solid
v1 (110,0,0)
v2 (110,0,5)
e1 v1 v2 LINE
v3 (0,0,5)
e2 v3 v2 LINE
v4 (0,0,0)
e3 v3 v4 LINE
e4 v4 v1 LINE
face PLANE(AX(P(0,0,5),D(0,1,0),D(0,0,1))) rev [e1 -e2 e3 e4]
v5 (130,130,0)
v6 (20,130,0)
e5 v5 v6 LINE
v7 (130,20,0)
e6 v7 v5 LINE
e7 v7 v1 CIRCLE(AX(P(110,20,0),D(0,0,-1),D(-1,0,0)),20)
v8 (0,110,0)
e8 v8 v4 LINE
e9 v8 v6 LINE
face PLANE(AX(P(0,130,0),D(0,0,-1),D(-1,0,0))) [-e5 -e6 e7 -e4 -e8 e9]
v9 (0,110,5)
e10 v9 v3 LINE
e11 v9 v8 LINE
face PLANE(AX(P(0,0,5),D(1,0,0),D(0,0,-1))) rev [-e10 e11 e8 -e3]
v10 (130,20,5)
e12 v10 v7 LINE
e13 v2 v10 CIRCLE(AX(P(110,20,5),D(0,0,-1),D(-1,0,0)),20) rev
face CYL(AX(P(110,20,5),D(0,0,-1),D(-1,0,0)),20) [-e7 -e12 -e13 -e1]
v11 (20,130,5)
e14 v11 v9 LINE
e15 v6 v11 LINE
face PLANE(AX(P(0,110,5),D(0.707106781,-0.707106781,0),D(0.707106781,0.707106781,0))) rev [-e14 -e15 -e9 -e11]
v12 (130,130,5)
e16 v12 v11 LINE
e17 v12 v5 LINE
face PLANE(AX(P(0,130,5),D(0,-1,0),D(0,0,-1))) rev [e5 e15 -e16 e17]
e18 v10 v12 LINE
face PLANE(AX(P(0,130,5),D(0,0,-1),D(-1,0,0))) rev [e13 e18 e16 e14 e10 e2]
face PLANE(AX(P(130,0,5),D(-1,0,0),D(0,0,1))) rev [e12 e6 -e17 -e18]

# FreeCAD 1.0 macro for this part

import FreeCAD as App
import Part
import Sketcher

V = App.Vector


def edges_at(feature, points):
    """Names of the edges that pass closest to the given points."""
    edges = feature.Shape.Edges
    near = lambda p: min(range(len(edges)), key=lambda i: edges[i].distToShape(Part.Vertex(*p))[0])
    return sorted({f"Edge{near(p) + 1}" for p in points})


def add_polygon(sketch, points):
    """Adds a closed chain of lines whose ends are joined by coincident constraints."""
    first, n = sketch.GeometryCount, len(points)
    for a, b in zip(points, points[1:] + points[:1]):
        sketch.addGeometry(Part.LineSegment(App.Vector(*a, 0), App.Vector(*b, 0)), False)
    for i in range(n):
        sketch.addConstraint(Sketcher.Constraint("Coincident", first + i, 2, first + (i + 1) % n, 1))

doc = App.newDocument("Part")
body = doc.addObject("PartDesign::Body", "Body")

sketch1 = doc.addObject("Sketcher::SketchObject", "Sketch")
body.addObject(sketch1)
sketch1.AttachmentSupport = (doc.XY_Plane, [""])
sketch1.MapMode = "FlatFace"
add_polygon(sketch1, [(0, 130), (0, 0), (130, 0), (130, 130)])
sketch1.addConstraint(Sketcher.Constraint("Vertical", 0))
sketch1.addConstraint(Sketcher.Constraint("Horizontal", 1))
sketch1.addConstraint(Sketcher.Constraint("Vertical", 2))
sketch1.addConstraint(Sketcher.Constraint("Horizontal", 3))
sketch1.addConstraint(Sketcher.Constraint("Coincident", 0, 2, -1, 1))
sketch1.addConstraint(Sketcher.Constraint("Equal", 3, 0))
sketch1.addConstraint(Sketcher.Constraint("DistanceX", 1, 1, 1, 2, 130.0))
pad1 = doc.addObject("PartDesign::Pad", "Pad")
body.addObject(pad1)
pad1.Profile = sketch1
pad1.Length = 5
doc.recompute()

fillet = doc.addObject("PartDesign::Fillet", "Fillet")
body.addObject(fillet)
fillet.Base = (pad1, edges_at(pad1, [(130, 0, 2.5)]))
fillet.Radius = 20
doc.recompute()

chamfer = doc.addObject("PartDesign::Chamfer", "Chamfer")
body.addObject(chamfer)
chamfer.Base = (fillet, edges_at(fillet, [(0, 130, 2.5)]))
chamfer.Size = 20

doc.recompute()
